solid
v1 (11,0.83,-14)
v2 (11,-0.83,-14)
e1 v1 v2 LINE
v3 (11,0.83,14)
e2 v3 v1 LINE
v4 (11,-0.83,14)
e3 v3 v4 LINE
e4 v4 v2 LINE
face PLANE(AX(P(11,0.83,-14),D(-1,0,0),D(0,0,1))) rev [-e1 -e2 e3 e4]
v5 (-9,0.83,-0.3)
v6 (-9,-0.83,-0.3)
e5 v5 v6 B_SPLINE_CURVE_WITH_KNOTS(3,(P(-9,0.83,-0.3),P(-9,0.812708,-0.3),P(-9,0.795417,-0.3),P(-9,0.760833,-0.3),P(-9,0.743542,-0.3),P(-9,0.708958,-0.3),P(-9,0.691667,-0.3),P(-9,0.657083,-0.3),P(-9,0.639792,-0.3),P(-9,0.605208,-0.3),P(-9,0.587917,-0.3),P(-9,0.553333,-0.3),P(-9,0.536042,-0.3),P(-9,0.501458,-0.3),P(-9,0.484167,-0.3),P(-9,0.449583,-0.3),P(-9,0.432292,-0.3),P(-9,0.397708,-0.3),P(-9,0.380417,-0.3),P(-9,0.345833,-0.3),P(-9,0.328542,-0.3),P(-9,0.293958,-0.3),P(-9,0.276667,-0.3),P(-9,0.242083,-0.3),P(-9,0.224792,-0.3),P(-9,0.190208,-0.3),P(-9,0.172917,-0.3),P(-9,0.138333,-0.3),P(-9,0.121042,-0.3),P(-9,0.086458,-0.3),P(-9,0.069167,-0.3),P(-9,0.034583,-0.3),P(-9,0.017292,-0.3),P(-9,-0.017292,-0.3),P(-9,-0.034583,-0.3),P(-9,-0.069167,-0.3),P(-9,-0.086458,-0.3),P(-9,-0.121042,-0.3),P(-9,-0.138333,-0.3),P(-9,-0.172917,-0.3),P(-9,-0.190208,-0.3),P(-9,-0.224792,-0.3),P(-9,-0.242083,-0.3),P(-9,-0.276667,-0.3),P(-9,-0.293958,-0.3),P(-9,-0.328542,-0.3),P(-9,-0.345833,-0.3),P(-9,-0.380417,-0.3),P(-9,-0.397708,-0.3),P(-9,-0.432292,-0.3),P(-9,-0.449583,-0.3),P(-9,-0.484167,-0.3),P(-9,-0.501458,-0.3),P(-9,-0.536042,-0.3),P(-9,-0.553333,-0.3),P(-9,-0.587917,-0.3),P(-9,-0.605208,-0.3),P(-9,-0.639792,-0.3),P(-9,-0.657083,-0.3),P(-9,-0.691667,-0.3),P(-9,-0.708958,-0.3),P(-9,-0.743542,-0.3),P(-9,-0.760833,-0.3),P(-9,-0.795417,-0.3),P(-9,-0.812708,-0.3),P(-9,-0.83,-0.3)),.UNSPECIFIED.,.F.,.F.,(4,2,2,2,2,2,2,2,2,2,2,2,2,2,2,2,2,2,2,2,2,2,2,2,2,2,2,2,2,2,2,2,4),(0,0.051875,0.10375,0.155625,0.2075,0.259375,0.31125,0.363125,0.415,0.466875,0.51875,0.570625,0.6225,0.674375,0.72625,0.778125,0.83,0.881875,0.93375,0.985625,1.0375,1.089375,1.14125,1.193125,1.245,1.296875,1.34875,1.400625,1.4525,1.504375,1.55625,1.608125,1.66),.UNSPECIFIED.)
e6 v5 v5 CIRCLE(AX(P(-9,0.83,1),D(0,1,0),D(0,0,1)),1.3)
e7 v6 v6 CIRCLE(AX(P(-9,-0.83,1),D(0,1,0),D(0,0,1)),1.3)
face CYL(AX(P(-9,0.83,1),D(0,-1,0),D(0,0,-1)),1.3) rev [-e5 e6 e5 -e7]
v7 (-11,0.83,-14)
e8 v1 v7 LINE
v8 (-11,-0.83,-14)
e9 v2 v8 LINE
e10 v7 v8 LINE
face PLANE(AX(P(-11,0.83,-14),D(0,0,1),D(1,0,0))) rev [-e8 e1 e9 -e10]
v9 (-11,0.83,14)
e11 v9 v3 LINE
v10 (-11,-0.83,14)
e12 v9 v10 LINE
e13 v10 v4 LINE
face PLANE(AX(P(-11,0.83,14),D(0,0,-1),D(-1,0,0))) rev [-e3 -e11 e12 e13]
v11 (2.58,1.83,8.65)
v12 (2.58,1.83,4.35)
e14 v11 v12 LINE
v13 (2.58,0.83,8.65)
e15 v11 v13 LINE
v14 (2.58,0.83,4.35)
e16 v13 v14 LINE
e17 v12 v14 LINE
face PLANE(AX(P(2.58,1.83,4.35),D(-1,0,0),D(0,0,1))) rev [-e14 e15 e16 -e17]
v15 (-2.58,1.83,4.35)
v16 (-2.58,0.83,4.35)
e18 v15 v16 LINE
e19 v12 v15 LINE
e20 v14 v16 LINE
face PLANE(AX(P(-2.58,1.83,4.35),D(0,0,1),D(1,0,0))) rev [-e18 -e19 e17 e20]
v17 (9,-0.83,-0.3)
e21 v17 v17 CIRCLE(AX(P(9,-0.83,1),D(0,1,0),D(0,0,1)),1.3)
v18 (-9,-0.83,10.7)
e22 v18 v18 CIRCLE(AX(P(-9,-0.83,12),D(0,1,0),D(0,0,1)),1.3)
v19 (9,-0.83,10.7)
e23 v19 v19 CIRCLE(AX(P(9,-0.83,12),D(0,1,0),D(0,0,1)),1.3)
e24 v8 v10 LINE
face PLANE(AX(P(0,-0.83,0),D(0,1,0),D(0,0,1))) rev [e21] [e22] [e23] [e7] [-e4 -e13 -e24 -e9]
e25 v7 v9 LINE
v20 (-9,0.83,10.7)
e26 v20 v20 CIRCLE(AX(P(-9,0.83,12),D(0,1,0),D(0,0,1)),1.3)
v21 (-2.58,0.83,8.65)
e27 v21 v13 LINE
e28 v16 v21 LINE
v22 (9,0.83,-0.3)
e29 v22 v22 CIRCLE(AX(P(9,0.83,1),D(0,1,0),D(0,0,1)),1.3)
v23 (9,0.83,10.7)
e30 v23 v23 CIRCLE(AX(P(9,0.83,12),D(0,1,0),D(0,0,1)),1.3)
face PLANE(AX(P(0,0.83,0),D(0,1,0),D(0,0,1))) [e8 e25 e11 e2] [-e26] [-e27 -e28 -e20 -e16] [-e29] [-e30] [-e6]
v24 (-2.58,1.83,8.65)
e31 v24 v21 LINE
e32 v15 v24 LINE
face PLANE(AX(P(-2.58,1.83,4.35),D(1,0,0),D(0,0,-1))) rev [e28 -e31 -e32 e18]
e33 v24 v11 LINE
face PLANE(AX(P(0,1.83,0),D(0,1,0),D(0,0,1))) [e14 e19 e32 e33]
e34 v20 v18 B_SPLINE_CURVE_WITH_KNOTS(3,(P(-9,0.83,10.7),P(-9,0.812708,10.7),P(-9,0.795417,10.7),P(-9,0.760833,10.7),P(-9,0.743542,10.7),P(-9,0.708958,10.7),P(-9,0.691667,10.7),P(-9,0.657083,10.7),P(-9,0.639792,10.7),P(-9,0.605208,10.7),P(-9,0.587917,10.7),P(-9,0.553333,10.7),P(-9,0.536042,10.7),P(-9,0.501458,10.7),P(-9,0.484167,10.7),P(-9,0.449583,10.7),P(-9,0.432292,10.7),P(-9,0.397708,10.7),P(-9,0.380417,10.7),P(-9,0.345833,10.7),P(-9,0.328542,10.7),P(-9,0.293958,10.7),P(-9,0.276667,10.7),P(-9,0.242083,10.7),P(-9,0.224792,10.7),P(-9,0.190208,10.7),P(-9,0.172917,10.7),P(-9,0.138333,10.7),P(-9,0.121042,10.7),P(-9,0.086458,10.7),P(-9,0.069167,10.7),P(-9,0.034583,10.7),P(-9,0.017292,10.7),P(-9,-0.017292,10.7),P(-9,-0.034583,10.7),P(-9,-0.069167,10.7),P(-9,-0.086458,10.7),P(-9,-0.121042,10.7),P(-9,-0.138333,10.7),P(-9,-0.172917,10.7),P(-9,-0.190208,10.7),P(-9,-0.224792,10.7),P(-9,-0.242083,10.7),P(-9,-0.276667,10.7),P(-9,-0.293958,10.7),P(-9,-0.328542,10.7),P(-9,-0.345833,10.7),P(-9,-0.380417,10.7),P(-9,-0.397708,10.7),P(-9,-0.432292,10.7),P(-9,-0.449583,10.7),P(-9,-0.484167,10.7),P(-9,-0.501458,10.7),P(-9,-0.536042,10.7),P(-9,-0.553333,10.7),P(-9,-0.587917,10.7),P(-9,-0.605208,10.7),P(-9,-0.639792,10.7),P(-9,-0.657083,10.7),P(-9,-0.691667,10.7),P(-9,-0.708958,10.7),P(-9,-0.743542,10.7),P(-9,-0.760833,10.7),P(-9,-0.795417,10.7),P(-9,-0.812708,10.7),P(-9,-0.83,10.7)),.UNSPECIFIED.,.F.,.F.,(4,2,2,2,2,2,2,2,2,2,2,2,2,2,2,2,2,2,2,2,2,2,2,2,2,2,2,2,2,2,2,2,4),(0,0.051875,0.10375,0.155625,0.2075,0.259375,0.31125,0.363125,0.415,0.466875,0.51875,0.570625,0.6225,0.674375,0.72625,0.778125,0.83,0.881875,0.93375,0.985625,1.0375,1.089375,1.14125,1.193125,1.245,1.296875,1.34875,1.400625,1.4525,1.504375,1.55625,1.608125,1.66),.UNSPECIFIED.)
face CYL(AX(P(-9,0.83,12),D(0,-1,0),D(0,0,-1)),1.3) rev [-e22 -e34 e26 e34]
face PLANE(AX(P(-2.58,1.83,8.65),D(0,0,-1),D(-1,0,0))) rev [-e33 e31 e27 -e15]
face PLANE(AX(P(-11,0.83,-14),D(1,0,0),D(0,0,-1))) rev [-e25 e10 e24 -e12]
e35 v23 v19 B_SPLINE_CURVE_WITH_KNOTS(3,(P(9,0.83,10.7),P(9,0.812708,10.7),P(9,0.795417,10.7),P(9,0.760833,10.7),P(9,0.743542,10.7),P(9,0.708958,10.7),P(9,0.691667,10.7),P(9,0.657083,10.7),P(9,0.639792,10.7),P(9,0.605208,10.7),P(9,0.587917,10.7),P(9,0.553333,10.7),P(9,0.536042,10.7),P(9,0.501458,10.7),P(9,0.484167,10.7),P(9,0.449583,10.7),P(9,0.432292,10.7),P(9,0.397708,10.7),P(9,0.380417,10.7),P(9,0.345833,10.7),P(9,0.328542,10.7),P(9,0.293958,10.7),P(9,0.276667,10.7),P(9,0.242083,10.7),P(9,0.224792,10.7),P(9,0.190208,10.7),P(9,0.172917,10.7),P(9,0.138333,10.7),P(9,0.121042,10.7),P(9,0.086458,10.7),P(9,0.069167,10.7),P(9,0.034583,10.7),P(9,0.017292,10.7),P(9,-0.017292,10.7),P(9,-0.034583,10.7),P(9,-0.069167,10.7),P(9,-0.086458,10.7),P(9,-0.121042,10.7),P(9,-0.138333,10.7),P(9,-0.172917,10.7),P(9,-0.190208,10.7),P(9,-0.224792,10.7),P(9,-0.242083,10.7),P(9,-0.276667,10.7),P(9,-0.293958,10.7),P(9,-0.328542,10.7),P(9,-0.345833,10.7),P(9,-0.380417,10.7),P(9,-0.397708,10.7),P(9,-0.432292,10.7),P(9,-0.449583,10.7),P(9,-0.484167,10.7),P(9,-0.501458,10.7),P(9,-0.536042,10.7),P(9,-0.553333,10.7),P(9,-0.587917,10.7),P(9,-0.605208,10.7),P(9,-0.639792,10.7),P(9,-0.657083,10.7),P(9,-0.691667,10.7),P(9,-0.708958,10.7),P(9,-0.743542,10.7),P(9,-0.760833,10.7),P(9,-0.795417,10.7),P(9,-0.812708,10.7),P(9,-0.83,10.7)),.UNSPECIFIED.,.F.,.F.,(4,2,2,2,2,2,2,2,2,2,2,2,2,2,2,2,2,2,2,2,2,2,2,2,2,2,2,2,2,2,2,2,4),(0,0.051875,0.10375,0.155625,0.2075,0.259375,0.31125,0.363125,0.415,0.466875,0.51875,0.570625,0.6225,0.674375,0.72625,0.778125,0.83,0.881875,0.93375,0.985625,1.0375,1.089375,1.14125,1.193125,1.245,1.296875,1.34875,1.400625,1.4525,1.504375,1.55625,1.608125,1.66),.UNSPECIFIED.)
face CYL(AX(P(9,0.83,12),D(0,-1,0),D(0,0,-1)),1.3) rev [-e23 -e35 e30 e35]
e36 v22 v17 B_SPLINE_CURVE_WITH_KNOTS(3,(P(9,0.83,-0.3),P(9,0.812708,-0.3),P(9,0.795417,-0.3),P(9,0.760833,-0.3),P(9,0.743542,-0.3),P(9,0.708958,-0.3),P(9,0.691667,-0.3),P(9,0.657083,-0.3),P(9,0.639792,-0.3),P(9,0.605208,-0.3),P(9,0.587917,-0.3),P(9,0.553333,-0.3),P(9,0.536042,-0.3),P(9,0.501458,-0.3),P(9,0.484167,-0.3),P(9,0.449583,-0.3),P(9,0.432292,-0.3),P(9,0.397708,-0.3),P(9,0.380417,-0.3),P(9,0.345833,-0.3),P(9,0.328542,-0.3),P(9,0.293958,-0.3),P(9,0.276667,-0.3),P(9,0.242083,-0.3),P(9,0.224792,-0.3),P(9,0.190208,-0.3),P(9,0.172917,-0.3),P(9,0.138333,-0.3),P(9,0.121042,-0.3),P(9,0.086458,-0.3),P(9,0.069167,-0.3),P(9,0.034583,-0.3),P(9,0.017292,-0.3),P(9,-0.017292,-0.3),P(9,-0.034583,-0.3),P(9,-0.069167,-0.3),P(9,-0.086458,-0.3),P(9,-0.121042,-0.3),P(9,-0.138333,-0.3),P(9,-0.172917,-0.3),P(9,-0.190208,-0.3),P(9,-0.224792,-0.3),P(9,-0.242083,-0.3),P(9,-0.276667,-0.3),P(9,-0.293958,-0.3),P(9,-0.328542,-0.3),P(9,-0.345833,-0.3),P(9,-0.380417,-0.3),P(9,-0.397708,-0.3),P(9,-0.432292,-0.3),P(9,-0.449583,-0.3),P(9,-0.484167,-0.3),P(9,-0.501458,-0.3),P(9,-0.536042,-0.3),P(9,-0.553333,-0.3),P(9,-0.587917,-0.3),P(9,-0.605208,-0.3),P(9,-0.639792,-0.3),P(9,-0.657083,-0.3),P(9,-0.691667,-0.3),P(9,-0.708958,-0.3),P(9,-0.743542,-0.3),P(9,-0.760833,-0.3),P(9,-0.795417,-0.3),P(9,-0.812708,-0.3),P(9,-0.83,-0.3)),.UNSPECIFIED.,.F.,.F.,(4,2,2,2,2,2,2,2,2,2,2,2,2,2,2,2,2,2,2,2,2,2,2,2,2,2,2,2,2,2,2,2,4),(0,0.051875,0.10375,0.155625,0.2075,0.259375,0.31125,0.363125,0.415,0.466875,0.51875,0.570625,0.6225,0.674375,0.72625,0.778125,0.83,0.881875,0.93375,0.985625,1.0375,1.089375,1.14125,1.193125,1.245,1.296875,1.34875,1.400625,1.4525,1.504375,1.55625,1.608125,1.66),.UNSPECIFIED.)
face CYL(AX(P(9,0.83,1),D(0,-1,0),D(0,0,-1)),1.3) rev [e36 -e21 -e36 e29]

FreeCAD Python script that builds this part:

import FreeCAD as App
import Part
import Sketcher

V = App.Vector


def add_polygon(sketch, points):
    """Adds a closed chain of lines whose ends are joined by coincident constraints."""
    first, n = sketch.GeometryCount, len(points)
    for a, b in zip(points, points[1:] + points[:1]):
        sketch.addGeometry(Part.LineSegment(App.Vector(*a, 0), App.Vector(*b, 0)), False)
    for i in range(n):
        sketch.addConstraint(Sketcher.Constraint("Coincident", first + i, 2, first + (i + 1) % n, 1))

doc = App.newDocument("Part")
params = doc.addObject("Spreadsheet::Sheet", "Params")
for row, (alias, value) in enumerate([
    ("sketch1_diameter", "2.6 mm"),
    ("sketch1_width", "22 mm"),
    ("sketch1_height", "28 mm"),
    ("pad1_length", "1.66 mm"),
    ("sketch2_height", "4.3 mm"),
    ("sketch2_width", "5.16 mm"),
    ("pad2_length", "1 mm"),
], start=1):
    params.set(f"A{row}", alias)
    params.set(f"B{row}", "=" + value)
    params.setAlias(f"B{row}", alias)

body = doc.addObject("PartDesign::Body", "Body")

sketch1 = body.newObject("Sketcher::SketchObject", "Sketch")
sketch1.AttachmentSupport = (doc.getObject("XZ_Plane"), [""])
sketch1.MapMode = "FlatFace"
add_polygon(sketch1, [(-11, -14), (-11, 14), (11, 14), (11, -14)])
sketch1.addGeometry(Part.Circle(V(-9, 12, 0), V(0, 0, 1), 1.3), False)
sketch1.addGeometry(Part.Circle(V(9, 12, 0), V(0, 0, 1), 1.3), False)
sketch1.addGeometry(Part.Circle(V(-9, 1, 0), V(0, 0, 1), 1.3), False)
sketch1.addGeometry(Part.Circle(V(9, 1, 0), V(0, 0, 1), 1.3), False)
sketch1.addConstraint([
    Sketcher.Constraint("Vertical", 0),
    Sketcher.Constraint("Horizontal", 1),
    Sketcher.Constraint("Vertical", 2),
    Sketcher.Constraint("Horizontal", 3),
    Sketcher.Constraint("Equal", 4, 5),
    Sketcher.Constraint("Equal", 5, 6),
    Sketcher.Constraint("Equal", 6, 7),
    Sketcher.Constraint("Symmetric", 0, 2, 2, 2, -1, 1),
    Sketcher.Constraint("Symmetric", 4, 3, 5, 3, -2),
    Sketcher.Constraint("Symmetric", 6, 3, 7, 3, -2),
    Sketcher.Constraint("Vertical", 4, 3, 6, 3),
    Sketcher.Constraint("Diameter", 4, 2.6),
    Sketcher.Constraint("DistanceX", 1, 1, 1, 2, 22.0),
    Sketcher.Constraint("DistanceY", 0, 1, 0, 2, 28.0),
    Sketcher.Constraint("DistanceX", 4, 3, -1, 1, 9.0),
    Sketcher.Constraint("DistanceY", -1, 1, 4, 3, 12.0),
    Sketcher.Constraint("DistanceY", -1, 1, 6, 3, 1.0),
])
sketch1.setExpression("Constraints[15]", "Params.sketch1_diameter")
sketch1.setExpression("Constraints[16]", "Params.sketch1_width")
sketch1.setExpression("Constraints[17]", "Params.sketch1_height")
pad1 = body.newObject("PartDesign::Pad", "Pad")
pad1.Profile = sketch1
pad1.setExpression("Length", "Params.pad1_length")
pad1.Midplane = True

sketch2 = body.newObject("Sketcher::SketchObject", "Sketch001")
sketch2.AttachmentSupport = (doc.getObject("XZ_Plane"), [""])
sketch2.MapMode = "FlatFace"
sketch2.AttachmentOffset = App.Placement(V(0, 0, -0.83), App.Rotation())
add_polygon(sketch2, [(-2.6, 4.3), (-2.6, 8.7), (2.6, 8.7), (2.6, 4.3)])
sketch2.addConstraint([
    Sketcher.Constraint("Vertical", 0),
    Sketcher.Constraint("Horizontal", 1),
    Sketcher.Constraint("Vertical", 2),
    Sketcher.Constraint("Horizontal", 3),
    Sketcher.Constraint("DistanceY", 0, 1, 0, 2, 4.3),
    Sketcher.Constraint("DistanceX", 1, 1, 1, 2, 5.16),
    Sketcher.Constraint("DistanceX", 0, 2, -1, 1, 2.58),
    Sketcher.Constraint("DistanceY", -1, 1, 0, 2, 8.65),
])
sketch2.setExpression("Constraints[8]", "Params.sketch2_height")
sketch2.setExpression("Constraints[9]", "Params.sketch2_width")
pad2 = body.newObject("PartDesign::Pad", "Pad001")
pad2.Profile = sketch2
pad2.setExpression("Length", "Params.pad2_length")
pad2.Reversed = True

doc.recompute()
